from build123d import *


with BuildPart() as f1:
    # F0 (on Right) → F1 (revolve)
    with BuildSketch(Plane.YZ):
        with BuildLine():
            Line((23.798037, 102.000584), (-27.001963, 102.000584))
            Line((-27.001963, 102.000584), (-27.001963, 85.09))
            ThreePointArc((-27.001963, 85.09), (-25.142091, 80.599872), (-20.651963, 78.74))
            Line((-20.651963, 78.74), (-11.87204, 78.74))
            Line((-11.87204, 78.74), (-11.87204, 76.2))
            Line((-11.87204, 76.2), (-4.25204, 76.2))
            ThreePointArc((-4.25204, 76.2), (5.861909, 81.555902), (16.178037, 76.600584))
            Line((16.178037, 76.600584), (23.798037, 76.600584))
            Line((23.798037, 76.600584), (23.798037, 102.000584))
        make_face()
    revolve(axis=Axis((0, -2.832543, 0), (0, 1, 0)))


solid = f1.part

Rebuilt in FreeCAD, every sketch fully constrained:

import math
import FreeCAD as App
import Part
import Sketcher
Q = App.Units.Quantity

doc = App.newDocument("Part")
body = doc.addObject("PartDesign::Body", "Body")

# Sketch on YZ plane
sketch1 = body.newObject("Sketcher::SketchObject", "Sketch")
sketch1.AttachmentSupport = (doc.getObject("YZ_Plane"), [""])
sketch1.MapMode = "FlatFace"
sketch1.addGeometry(Part.LineSegment(App.Vector(23.798037, 102.000584, 0), App.Vector(-27.001963, 102.000584, 0)), False)
sketch1.addGeometry(Part.LineSegment(App.Vector(-27.001963, 102.000584, 0), App.Vector(-27.001963, 85.09, 0)), False)
sketch1.addGeometry(Part.ArcOfCircle(Part.Circle(App.Vector(-20.651963, 85.09, 0), App.Vector(0, 0, 1), 6.35), math.radians(-179.999998), math.radians(-90.000002)), False)
sketch1.addGeometry(Part.LineSegment(App.Vector(-20.651963, 78.74, 0), App.Vector(-11.87204, 78.74, 0)), False)
sketch1.addGeometry(Part.LineSegment(App.Vector(-11.87204, 78.74, 0), App.Vector(-11.87204, 76.2, 0)), False)
sketch1.addGeometry(Part.LineSegment(App.Vector(-11.87204, 76.2, 0), App.Vector(-4.25204, 76.2, 0)), False)
sketch1.addGeometry(Part.ArcOfCircle(Part.Circle(App.Vector(6.110878, 68.858343, 0), App.Vector(0, 0, 1), 12.7), math.radians(37.562415), math.radians(144.684159)), False)
sketch1.addGeometry(Part.LineSegment(App.Vector(16.178037, 76.600584, 0), App.Vector(23.798037, 76.600584, 0)), False)
sketch1.addGeometry(Part.LineSegment(App.Vector(23.798037, 76.600584, 0), App.Vector(23.798037, 102.000584, 0)), False)
sketch1.addConstraint(Sketcher.Constraint("Coincident", 0, 2, 1, 1))
sketch1.addConstraint(Sketcher.Constraint("Tangent", 1, 2, 2, 1))
sketch1.addConstraint(Sketcher.Constraint("Tangent", 2, 2, 3, 1))
sketch1.addConstraint(Sketcher.Constraint("Coincident", 3, 2, 4, 1))
sketch1.addConstraint(Sketcher.Constraint("Coincident", 4, 2, 5, 1))
sketch1.addConstraint(Sketcher.Constraint("Coincident", 5, 2, 6, 2))
sketch1.addConstraint(Sketcher.Constraint("Coincident", 6, 1, 7, 1))
sketch1.addConstraint(Sketcher.Constraint("Coincident", 7, 2, 8, 1))
sketch1.addConstraint(Sketcher.Constraint("Coincident", 8, 2, 0, 1))
sketch1.addConstraint(Sketcher.Constraint("Horizontal", 0))
sketch1.addConstraint(Sketcher.Constraint("Vertical", 1))
sketch1.addConstraint(Sketcher.Constraint("Horizontal", 3))
sketch1.addConstraint(Sketcher.Constraint("Vertical", 4))
sketch1.addConstraint(Sketcher.Constraint("Horizontal", 5))
sketch1.addConstraint(Sketcher.Constraint("Horizontal", 7))
sketch1.addConstraint(Sketcher.Constraint("Vertical", 8))
sketch1.addConstraint(Sketcher.Constraint("Equal", 5, 7))
sketch1.addConstraint(Sketcher.Constraint("Radius", 6, Q("0.5 in")))
sketch1.addConstraint(Sketcher.Constraint("DistanceX", 0, 2, 0, 1, Q("2 in")))
sketch1.addConstraint(Sketcher.Constraint("DistanceY", 8, 1, 8, 2, Q("1 in")))
sketch1.addConstraint(Sketcher.Constraint("Radius", 2, Q("0.25 in")))
sketch1.addConstraint(Sketcher.Constraint("DistanceX", 5, 1, 5, 2, Q("0.3 in")))
sketch1.addConstraint(Sketcher.Constraint("DistanceY", 4, 2, 4, 1, Q("0.1 in")))
sketch1.addConstraint(Sketcher.Constraint("DistanceY", -1, 1, 4, 2, Q("3 in")))
sketch1.addConstraint(Sketcher.Constraint("DistanceX", 3, 1, 3, 2, Q("8.779923 mm")))
sketch1.addConstraint(Sketcher.Constraint("DistanceY", 1, 2, 1, 1, Q("16.910584 mm")))
sketch1.addConstraint(Sketcher.Constraint("DistanceX", 3, 2, -1, 1, Q("11.87204 mm")))
revolution = body.newObject("PartDesign::Revolution", "Revolution")
revolution.Profile = sketch1
revolution.ReferenceAxis = (sketch1, ["H_Axis"])
revolution.Angle = 360

doc.recompute()
